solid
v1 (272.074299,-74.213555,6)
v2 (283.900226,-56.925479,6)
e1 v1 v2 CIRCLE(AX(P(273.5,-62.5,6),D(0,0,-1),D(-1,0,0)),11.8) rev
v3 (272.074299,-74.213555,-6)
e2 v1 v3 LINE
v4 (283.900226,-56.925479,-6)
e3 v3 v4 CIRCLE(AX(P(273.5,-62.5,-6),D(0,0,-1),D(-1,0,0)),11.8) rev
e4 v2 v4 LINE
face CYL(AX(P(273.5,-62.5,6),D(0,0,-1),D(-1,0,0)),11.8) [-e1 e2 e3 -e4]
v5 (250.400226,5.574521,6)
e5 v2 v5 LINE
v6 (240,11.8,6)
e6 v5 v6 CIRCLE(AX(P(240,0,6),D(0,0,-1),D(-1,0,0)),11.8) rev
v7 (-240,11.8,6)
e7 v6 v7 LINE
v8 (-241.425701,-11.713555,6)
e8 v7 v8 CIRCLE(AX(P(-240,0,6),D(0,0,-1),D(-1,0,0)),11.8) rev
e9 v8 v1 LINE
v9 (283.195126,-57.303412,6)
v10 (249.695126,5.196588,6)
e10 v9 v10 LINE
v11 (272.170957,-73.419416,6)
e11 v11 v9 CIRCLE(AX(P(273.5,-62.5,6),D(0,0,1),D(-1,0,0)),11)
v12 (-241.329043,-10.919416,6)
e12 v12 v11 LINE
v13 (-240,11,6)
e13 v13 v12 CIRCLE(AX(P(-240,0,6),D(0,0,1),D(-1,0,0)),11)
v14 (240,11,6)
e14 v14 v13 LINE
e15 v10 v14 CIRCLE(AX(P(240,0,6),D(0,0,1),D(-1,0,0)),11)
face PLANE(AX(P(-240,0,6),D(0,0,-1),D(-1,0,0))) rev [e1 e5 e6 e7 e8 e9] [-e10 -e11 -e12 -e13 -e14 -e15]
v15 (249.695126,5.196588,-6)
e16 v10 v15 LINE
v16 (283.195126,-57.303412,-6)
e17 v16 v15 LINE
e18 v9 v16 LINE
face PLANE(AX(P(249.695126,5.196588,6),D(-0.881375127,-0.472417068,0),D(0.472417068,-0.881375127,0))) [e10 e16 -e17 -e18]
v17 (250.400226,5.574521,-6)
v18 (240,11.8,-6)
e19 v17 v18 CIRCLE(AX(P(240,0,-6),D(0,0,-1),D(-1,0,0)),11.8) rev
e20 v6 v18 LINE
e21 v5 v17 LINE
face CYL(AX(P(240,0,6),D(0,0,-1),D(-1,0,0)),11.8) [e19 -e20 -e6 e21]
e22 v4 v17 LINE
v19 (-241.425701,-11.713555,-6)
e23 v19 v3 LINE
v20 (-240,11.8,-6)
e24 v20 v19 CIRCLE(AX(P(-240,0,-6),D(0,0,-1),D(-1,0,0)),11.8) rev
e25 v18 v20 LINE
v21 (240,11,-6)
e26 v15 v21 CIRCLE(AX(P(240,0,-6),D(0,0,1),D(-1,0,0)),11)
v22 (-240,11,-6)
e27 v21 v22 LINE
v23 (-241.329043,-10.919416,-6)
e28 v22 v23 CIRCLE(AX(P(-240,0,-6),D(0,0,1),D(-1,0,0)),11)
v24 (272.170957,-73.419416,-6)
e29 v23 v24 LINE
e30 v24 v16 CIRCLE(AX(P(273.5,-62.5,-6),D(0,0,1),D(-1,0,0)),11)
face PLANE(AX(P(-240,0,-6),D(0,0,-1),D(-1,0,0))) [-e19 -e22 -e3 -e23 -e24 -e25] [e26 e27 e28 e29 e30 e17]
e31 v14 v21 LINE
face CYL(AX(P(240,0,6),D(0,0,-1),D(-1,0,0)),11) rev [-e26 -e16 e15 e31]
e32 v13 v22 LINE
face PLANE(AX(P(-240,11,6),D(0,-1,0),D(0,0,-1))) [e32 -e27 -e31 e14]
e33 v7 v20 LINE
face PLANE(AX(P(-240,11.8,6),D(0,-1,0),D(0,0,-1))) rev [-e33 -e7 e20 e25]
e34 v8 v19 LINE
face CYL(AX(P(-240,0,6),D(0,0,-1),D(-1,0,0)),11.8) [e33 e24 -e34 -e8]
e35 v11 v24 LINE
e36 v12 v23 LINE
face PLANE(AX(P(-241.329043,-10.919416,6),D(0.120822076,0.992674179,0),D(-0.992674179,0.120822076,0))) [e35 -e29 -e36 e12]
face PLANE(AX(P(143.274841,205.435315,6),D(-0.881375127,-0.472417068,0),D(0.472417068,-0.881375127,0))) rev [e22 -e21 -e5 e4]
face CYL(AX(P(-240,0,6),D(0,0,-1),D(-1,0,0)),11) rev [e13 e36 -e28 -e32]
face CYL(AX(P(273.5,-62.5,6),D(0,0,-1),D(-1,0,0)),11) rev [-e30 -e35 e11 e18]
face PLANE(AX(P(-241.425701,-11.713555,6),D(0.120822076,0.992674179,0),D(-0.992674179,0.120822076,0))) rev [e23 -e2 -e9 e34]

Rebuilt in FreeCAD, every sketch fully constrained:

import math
import FreeCAD as App
import Part
import Sketcher
Q = App.Units.Quantity

doc = App.newDocument("Part")
body = doc.addObject("PartDesign::Body", "Body")

# Sketch on XY plane
sketch1 = body.newObject("Sketcher::SketchObject", "Sketch")
sketch1.AttachmentSupport = (doc.getObject("XY_Plane"), [""])
sketch1.MapMode = "FlatFace"
sketch1.addGeometry(Part.LineSegment(App.Vector(240, 12, 0), App.Vector(-240, 12, 0)), False)
sketch1.addGeometry(Part.ArcOfCircle(Part.Circle(App.Vector(-240, 0, 0), App.Vector(0, 0, 1), 12), math.radians(90), math.radians(263)), False)
sketch1.addGeometry(Part.LineSegment(App.Vector(-241, -12, 0), App.Vector(272, -74, 0)), False)
sketch1.addGeometry(Part.ArcOfCircle(Part.Circle(App.Vector(274, -62, 0), App.Vector(0, 0, 1), 12), math.radians(-97), math.radians(28)), False)
sketch1.addGeometry(Part.LineSegment(App.Vector(284, -57, 0), App.Vector(250, 6, 0)), False)
sketch1.addGeometry(Part.ArcOfCircle(Part.Circle(App.Vector(240, 0, 0), App.Vector(0, 0, 1), 12), math.radians(28), math.radians(90)), False)
sketch1.addGeometry(Part.LineSegment(App.Vector(-240, 11, 0), App.Vector(240, 11, 0)), False)
sketch1.addGeometry(Part.ArcOfCircle(Part.Circle(App.Vector(240, 0, 0), App.Vector(0, 0, 1), 11), math.radians(28), math.radians(90)), False)
sketch1.addGeometry(Part.LineSegment(App.Vector(250, 5, 0), App.Vector(283, -57, 0)), False)
sketch1.addGeometry(Part.ArcOfCircle(Part.Circle(App.Vector(274, -62, 0), App.Vector(0, 0, 1), 11), math.radians(-97), math.radians(28)), False)
sketch1.addGeometry(Part.LineSegment(App.Vector(272, -73, 0), App.Vector(-241, -11, 0)), False)
sketch1.addGeometry(Part.ArcOfCircle(Part.Circle(App.Vector(-240, 0, 0), App.Vector(0, 0, 1), 11), math.radians(90), math.radians(263)), False)
sketch1.addConstraint(Sketcher.Constraint("Tangent", 0, 2, 1, 1))
sketch1.addConstraint(Sketcher.Constraint("Tangent", 1, 2, 2, 1))
sketch1.addConstraint(Sketcher.Constraint("Tangent", 2, 2, 3, 1))
sketch1.addConstraint(Sketcher.Constraint("Tangent", 3, 2, 4, 1))
sketch1.addConstraint(Sketcher.Constraint("Tangent", 4, 2, 5, 1))
sketch1.addConstraint(Sketcher.Constraint("Tangent", 5, 2, 0, 1))
sketch1.addConstraint(Sketcher.Constraint("Tangent", 6, 2, 7, 2))
sketch1.addConstraint(Sketcher.Constraint("Tangent", 7, 1, 8, 1))
sketch1.addConstraint(Sketcher.Constraint("Tangent", 8, 2, 9, 2))
sketch1.addConstraint(Sketcher.Constraint("Tangent", 9, 1, 10, 1))
sketch1.addConstraint(Sketcher.Constraint("Tangent", 10, 2, 11, 2))
sketch1.addConstraint(Sketcher.Constraint("Tangent", 11, 1, 6, 1))
sketch1.addConstraint(Sketcher.Constraint("Horizontal", 0))
sketch1.addConstraint(Sketcher.Constraint("Horizontal", 6))
sketch1.addConstraint(Sketcher.Constraint("Coincident", 7, 3, 5, 3))
sketch1.addConstraint(Sketcher.Constraint("Coincident", 9, 3, 3, 3))
sketch1.addConstraint(Sketcher.Constraint("Coincident", 11, 3, 1, 3))
sketch1.addConstraint(Sketcher.Constraint("Equal", 1, 3))
sketch1.addConstraint(Sketcher.Constraint("Equal", 3, 5))
sketch1.addConstraint(Sketcher.Constraint("Equal", 7, 9))
sketch1.addConstraint(Sketcher.Constraint("Symmetric", 1, 3, 5, 3, -1, 1))
sketch1.addConstraint(Sketcher.Constraint("Radius", 7, Q("11 mm")))
sketch1.addConstraint(Sketcher.Constraint("Radius", 1, Q("11.8 mm")))
sketch1.addConstraint(Sketcher.Constraint("DistanceX", 0, 2, 0, 1, Q("480 mm")))
sketch1.addConstraint(Sketcher.Constraint("DistanceX", -1, 1, 3, 3, Q("273.5 mm")))
sketch1.addConstraint(Sketcher.Constraint("DistanceY", 3, 3, -1, 1, Q("62.5 mm")))
pad1 = body.newObject("PartDesign::Pad", "Pad")
pad1.Profile = sketch1
pad1.Length = 12
pad1.Midplane = True

doc.recompute()
